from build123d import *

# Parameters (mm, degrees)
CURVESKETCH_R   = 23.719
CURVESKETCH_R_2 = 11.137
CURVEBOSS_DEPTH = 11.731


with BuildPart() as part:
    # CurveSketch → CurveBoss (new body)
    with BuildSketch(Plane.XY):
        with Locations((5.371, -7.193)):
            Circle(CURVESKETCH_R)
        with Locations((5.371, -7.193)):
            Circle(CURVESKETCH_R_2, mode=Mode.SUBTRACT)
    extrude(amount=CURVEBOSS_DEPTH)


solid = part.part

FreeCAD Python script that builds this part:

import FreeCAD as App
import Part
import Sketcher

doc = App.newDocument("Part")
params = doc.addObject("Spreadsheet::Sheet", "Params")
for row, (alias, value) in enumerate([
    ("pad1_length", "11.731 mm"),
], start=1):
    params.set(f"A{row}", alias)
    params.set(f"B{row}", "=" + value)
    params.setAlias(f"B{row}", alias)

body = doc.addObject("PartDesign::Body", "Body")

# Sketch on XY plane
sketch1 = body.newObject("Sketcher::SketchObject", "Sketch")
sketch1.AttachmentSupport = (doc.getObject("XY_Plane"), [""])
sketch1.MapMode = "FlatFace"
sketch1.addGeometry(Part.Circle(App.Vector(5.371, -7.193, 0), App.Vector(0, 0, 1), 23.719), False)
sketch1.addGeometry(Part.Circle(App.Vector(5.371, -7.193, 0), App.Vector(0, 0, 1), 11.137), False)
sketch1.addConstraint(Sketcher.Constraint("Coincident", 1, 3, 0, 3))
sketch1.addConstraint(Sketcher.Constraint("Diameter", 0, 47.438))
sketch1.addConstraint(Sketcher.Constraint("Diameter", 1, 22.274))
sketch1.addConstraint(Sketcher.Constraint("DistanceX", -1, 1, 0, 3, 5.371))
sketch1.addConstraint(Sketcher.Constraint("DistanceY", 0, 3, -1, 1, 7.193))
pad1 = body.newObject("PartDesign::Pad", "Pad")
pad1.Profile = sketch1
pad1.setExpression("Length", "Params.pad1_length")

doc.recompute()
